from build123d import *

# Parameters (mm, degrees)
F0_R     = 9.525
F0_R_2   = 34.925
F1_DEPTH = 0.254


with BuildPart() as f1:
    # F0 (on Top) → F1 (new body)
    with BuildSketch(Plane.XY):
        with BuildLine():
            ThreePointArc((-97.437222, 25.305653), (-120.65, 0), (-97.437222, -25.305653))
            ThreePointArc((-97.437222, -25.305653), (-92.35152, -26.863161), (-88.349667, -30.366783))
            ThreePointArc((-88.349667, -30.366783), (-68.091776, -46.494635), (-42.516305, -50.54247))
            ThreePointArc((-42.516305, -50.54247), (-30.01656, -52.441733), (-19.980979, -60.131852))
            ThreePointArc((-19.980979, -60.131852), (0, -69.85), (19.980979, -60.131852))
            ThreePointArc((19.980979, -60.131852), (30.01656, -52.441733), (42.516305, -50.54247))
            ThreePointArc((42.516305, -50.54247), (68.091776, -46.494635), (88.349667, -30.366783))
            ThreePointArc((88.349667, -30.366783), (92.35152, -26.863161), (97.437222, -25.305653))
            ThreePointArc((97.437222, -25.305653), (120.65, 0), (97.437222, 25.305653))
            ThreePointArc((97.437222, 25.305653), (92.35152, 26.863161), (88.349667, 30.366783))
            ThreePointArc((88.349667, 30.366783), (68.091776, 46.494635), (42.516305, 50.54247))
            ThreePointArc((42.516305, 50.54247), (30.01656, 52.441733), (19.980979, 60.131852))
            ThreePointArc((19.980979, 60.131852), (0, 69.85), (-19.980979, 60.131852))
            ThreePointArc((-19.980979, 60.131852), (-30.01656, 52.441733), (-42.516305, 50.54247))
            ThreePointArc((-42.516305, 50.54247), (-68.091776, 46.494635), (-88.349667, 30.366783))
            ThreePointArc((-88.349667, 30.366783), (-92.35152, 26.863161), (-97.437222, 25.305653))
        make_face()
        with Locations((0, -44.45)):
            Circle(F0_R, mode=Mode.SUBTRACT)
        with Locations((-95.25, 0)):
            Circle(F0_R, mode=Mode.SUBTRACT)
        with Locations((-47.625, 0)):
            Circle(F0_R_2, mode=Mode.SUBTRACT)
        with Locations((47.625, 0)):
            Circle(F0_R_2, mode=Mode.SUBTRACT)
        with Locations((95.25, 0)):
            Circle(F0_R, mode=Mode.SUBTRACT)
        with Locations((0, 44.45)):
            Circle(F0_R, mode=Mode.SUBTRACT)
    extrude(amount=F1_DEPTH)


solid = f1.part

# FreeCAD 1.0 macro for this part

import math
import FreeCAD as App
import Part
import Sketcher
Q = App.Units.Quantity

doc = App.newDocument("Part")
body = doc.addObject("PartDesign::Body", "Body")

sketch1 = doc.addObject("Sketcher::SketchObject", "Sketch")
body.addObject(sketch1)
sketch1.AttachmentSupport = (doc.XY_Plane, [""])
sketch1.MapMode = "FlatFace"
sketch1.addGeometry(Part.ArcOfCircle(Part.Circle(App.Vector(-95.25, 0, 0), App.Vector(0, 0, 1), 25.4), math.radians(94.939921), math.radians(265.060079)), False)
sketch1.addGeometry(Part.ArcOfCircle(Part.Circle(App.Vector(-98.530833, -37.958479, 0), App.Vector(0, 0, 1), 12.699999), math.radians(36.710448), math.radians(85.060079)), False)
sketch1.addGeometry(Part.ArcOfCircle(Part.Circle(App.Vector(-47.624999, 0.000001, 0), App.Vector(0, 0, 1), 50.800002), math.radians(-143.289553), math.radians(-84.228303)), False)
sketch1.addGeometry(Part.ArcOfCircle(Part.Circle(App.Vector(-39.961958, -75.813706, 0), App.Vector(0, 0, 1), 25.400001), math.radians(38.12621), math.radians(95.771698)), False)
sketch1.addGeometry(Part.ArcOfCircle(Part.Circle(App.Vector(0, -44.45, 0), App.Vector(0, 0, 1), 25.4), math.radians(-141.873793), math.radians(-38.126207)), False)
sketch1.addGeometry(Part.ArcOfCircle(Part.Circle(App.Vector(39.961958, -75.813706, 0), App.Vector(0, 0, 1), 25.400001), math.radians(84.228302), math.radians(141.87379)), False)
sketch1.addGeometry(Part.ArcOfCircle(Part.Circle(App.Vector(47.624999, 0.000001, 0), App.Vector(0, 0, 1), 50.800002), math.radians(-95.771697), math.radians(-36.710447)), False)
sketch1.addGeometry(Part.ArcOfCircle(Part.Circle(App.Vector(98.530833, -37.958479, 0), App.Vector(0, 0, 1), 12.699999), math.radians(94.939921), math.radians(143.289552)), False)
sketch1.addGeometry(Part.ArcOfCircle(Part.Circle(App.Vector(95.25, 0, 0), App.Vector(0, 0, 1), 25.4), math.radians(-85.060079), math.radians(85.060079)), False)
sketch1.addGeometry(Part.ArcOfCircle(Part.Circle(App.Vector(98.530833, 37.958479, 0), App.Vector(0, 0, 1), 12.699999), math.radians(-143.289552), math.radians(-94.939921)), False)
sketch1.addGeometry(Part.ArcOfCircle(Part.Circle(App.Vector(47.624999, -0.000001, 0), App.Vector(0, 0, 1), 50.800002), math.radians(36.710447), math.radians(95.771697)), False)
sketch1.addGeometry(Part.ArcOfCircle(Part.Circle(App.Vector(39.961958, 75.813706, 0), App.Vector(0, 0, 1), 25.400001), math.radians(-141.87379), math.radians(-84.228302)), False)
sketch1.addGeometry(Part.ArcOfCircle(Part.Circle(App.Vector(0, 44.45, 0), App.Vector(0, 0, 1), 25.4), math.radians(38.126207), math.radians(141.873793)), False)
sketch1.addGeometry(Part.ArcOfCircle(Part.Circle(App.Vector(-39.961958, 75.813706, 0), App.Vector(0, 0, 1), 25.400001), math.radians(-95.771698), math.radians(-38.12621)), False)
sketch1.addGeometry(Part.ArcOfCircle(Part.Circle(App.Vector(-47.624999, -0.000001, 0), App.Vector(0, 0, 1), 50.800002), math.radians(84.228303), math.radians(143.289553)), False)
sketch1.addGeometry(Part.ArcOfCircle(Part.Circle(App.Vector(-98.530833, 37.958479, 0), App.Vector(0, 0, 1), 12.699999), math.radians(-85.060079), math.radians(-36.710448)), False)
sketch1.addGeometry(Part.Circle(App.Vector(0, -44.45, 0), App.Vector(0, 0, 1), 9.525), False)
sketch1.addGeometry(Part.Circle(App.Vector(-95.25, 0, 0), App.Vector(0, 0, 1), 9.525), False)
sketch1.addGeometry(Part.Circle(App.Vector(-47.625, 0, 0), App.Vector(0, 0, 1), 34.925), False)
sketch1.addGeometry(Part.Circle(App.Vector(47.625, 0, 0), App.Vector(0, 0, 1), 34.925), False)
sketch1.addGeometry(Part.Circle(App.Vector(95.25, 0, 0), App.Vector(0, 0, 1), 9.525), False)
sketch1.addGeometry(Part.Circle(App.Vector(0, 44.45, 0), App.Vector(0, 0, 1), 9.525), False)
sketch1.addConstraint(Sketcher.Constraint("Tangent", 0, 2, 1, 2))
sketch1.addConstraint(Sketcher.Constraint("Tangent", 1, 1, 2, 1))
sketch1.addConstraint(Sketcher.Constraint("Tangent", 2, 2, 3, 2))
sketch1.addConstraint(Sketcher.Constraint("Tangent", 3, 1, 4, 1))
sketch1.addConstraint(Sketcher.Constraint("Tangent", 4, 2, 5, 2))
sketch1.addConstraint(Sketcher.Constraint("Tangent", 5, 1, 6, 1))
sketch1.addConstraint(Sketcher.Constraint("Tangent", 6, 2, 7, 2))
sketch1.addConstraint(Sketcher.Constraint("Tangent", 7, 1, 8, 1))
sketch1.addConstraint(Sketcher.Constraint("Tangent", 8, 2, 9, 2))
sketch1.addConstraint(Sketcher.Constraint("Tangent", 9, 1, 10, 1))
sketch1.addConstraint(Sketcher.Constraint("Tangent", 10, 2, 11, 2))
sketch1.addConstraint(Sketcher.Constraint("Tangent", 11, 1, 12, 1))
sketch1.addConstraint(Sketcher.Constraint("Tangent", 12, 2, 13, 2))
sketch1.addConstraint(Sketcher.Constraint("Tangent", 13, 1, 14, 1))
sketch1.addConstraint(Sketcher.Constraint("Tangent", 14, 2, 15, 2))
sketch1.addConstraint(Sketcher.Constraint("Tangent", 15, 1, 0, 1))
sketch1.addConstraint(Sketcher.Constraint("Coincident", 10, 3, 6, 3))
sketch1.addConstraint(Sketcher.Constraint("Coincident", 14, 3, 2, 3))
sketch1.addConstraint(Sketcher.Constraint("Coincident", 16, 3, 4, 3))
sketch1.addConstraint(Sketcher.Constraint("Coincident", 17, 3, 0, 3))
sketch1.addConstraint(Sketcher.Constraint("Coincident", 18, 3, 2, 3))
sketch1.addConstraint(Sketcher.Constraint("Coincident", 19, 3, 6, 3))
sketch1.addConstraint(Sketcher.Constraint("Coincident", 20, 3, 8, 3))
sketch1.addConstraint(Sketcher.Constraint("Coincident", 21, 3, 12, 3))
sketch1.addConstraint(Sketcher.Constraint("Equal", 0, 3))
sketch1.addConstraint(Sketcher.Constraint("Equal", 3, 4))
sketch1.addConstraint(Sketcher.Constraint("Equal", 4, 5))
sketch1.addConstraint(Sketcher.Constraint("Equal", 2, 6))
sketch1.addConstraint(Sketcher.Constraint("Equal", 1, 7))
sketch1.addConstraint(Sketcher.Constraint("Equal", 5, 8))
sketch1.addConstraint(Sketcher.Constraint("Equal", 7, 9))
sketch1.addConstraint(Sketcher.Constraint("Equal", 6, 10))
sketch1.addConstraint(Sketcher.Constraint("Equal", 8, 11))
sketch1.addConstraint(Sketcher.Constraint("Equal", 11, 12))
sketch1.addConstraint(Sketcher.Constraint("Equal", 12, 13))
sketch1.addConstraint(Sketcher.Constraint("Equal", 10, 14))
sketch1.addConstraint(Sketcher.Constraint("Equal", 9, 15))
sketch1.addConstraint(Sketcher.Constraint("Equal", 16, 17))
sketch1.addConstraint(Sketcher.Constraint("Equal", 18, 19))
sketch1.addConstraint(Sketcher.Constraint("Equal", 17, 20))
sketch1.addConstraint(Sketcher.Constraint("Equal", 20, 21))
sketch1.addConstraint(Sketcher.Constraint("Symmetric", 2, 3, 6, 3, -1, 1))
sketch1.addConstraint(Sketcher.Constraint("Symmetric", 0, 3, 8, 3, -1, 1))
sketch1.addConstraint(Sketcher.Constraint("Symmetric", 4, 3, 12, 3, -1, 1))
sketch1.addConstraint(Sketcher.Constraint("Symmetric", 3, 3, 5, 3, -2))
sketch1.addConstraint(Sketcher.Constraint("PointOnObject", 0, 3, -1))
sketch1.addConstraint(Sketcher.Constraint("Radius", 0, Q("1 in")))
sketch1.addConstraint(Sketcher.Constraint("Radius", 2, Q("2.0000001 in")))
sketch1.addConstraint(Sketcher.Constraint("Radius", 1, Q("0.5 in")))
sketch1.addConstraint(Sketcher.Constraint("Diameter", 16, Q("0.75 in")))
sketch1.addConstraint(Sketcher.Constraint("Diameter", 18, Q("2.75 in")))
sketch1.addConstraint(Sketcher.Constraint("DistanceY", 4, 3, 12, 3, Q("3.5 in")))
sketch1.addConstraint(Sketcher.Constraint("DistanceX", 0, 3, -1, 1, Q("3.75 in")))
sketch1.addConstraint(Sketcher.Constraint("DistanceX", 2, 3, 6, 3, Q("3.7499999 in")))
pad1 = doc.addObject("PartDesign::Pad", "Pad")
body.addObject(pad1)
pad1.Profile = sketch1
pad1.Length = Q("0.01 in")

doc.recompute()
